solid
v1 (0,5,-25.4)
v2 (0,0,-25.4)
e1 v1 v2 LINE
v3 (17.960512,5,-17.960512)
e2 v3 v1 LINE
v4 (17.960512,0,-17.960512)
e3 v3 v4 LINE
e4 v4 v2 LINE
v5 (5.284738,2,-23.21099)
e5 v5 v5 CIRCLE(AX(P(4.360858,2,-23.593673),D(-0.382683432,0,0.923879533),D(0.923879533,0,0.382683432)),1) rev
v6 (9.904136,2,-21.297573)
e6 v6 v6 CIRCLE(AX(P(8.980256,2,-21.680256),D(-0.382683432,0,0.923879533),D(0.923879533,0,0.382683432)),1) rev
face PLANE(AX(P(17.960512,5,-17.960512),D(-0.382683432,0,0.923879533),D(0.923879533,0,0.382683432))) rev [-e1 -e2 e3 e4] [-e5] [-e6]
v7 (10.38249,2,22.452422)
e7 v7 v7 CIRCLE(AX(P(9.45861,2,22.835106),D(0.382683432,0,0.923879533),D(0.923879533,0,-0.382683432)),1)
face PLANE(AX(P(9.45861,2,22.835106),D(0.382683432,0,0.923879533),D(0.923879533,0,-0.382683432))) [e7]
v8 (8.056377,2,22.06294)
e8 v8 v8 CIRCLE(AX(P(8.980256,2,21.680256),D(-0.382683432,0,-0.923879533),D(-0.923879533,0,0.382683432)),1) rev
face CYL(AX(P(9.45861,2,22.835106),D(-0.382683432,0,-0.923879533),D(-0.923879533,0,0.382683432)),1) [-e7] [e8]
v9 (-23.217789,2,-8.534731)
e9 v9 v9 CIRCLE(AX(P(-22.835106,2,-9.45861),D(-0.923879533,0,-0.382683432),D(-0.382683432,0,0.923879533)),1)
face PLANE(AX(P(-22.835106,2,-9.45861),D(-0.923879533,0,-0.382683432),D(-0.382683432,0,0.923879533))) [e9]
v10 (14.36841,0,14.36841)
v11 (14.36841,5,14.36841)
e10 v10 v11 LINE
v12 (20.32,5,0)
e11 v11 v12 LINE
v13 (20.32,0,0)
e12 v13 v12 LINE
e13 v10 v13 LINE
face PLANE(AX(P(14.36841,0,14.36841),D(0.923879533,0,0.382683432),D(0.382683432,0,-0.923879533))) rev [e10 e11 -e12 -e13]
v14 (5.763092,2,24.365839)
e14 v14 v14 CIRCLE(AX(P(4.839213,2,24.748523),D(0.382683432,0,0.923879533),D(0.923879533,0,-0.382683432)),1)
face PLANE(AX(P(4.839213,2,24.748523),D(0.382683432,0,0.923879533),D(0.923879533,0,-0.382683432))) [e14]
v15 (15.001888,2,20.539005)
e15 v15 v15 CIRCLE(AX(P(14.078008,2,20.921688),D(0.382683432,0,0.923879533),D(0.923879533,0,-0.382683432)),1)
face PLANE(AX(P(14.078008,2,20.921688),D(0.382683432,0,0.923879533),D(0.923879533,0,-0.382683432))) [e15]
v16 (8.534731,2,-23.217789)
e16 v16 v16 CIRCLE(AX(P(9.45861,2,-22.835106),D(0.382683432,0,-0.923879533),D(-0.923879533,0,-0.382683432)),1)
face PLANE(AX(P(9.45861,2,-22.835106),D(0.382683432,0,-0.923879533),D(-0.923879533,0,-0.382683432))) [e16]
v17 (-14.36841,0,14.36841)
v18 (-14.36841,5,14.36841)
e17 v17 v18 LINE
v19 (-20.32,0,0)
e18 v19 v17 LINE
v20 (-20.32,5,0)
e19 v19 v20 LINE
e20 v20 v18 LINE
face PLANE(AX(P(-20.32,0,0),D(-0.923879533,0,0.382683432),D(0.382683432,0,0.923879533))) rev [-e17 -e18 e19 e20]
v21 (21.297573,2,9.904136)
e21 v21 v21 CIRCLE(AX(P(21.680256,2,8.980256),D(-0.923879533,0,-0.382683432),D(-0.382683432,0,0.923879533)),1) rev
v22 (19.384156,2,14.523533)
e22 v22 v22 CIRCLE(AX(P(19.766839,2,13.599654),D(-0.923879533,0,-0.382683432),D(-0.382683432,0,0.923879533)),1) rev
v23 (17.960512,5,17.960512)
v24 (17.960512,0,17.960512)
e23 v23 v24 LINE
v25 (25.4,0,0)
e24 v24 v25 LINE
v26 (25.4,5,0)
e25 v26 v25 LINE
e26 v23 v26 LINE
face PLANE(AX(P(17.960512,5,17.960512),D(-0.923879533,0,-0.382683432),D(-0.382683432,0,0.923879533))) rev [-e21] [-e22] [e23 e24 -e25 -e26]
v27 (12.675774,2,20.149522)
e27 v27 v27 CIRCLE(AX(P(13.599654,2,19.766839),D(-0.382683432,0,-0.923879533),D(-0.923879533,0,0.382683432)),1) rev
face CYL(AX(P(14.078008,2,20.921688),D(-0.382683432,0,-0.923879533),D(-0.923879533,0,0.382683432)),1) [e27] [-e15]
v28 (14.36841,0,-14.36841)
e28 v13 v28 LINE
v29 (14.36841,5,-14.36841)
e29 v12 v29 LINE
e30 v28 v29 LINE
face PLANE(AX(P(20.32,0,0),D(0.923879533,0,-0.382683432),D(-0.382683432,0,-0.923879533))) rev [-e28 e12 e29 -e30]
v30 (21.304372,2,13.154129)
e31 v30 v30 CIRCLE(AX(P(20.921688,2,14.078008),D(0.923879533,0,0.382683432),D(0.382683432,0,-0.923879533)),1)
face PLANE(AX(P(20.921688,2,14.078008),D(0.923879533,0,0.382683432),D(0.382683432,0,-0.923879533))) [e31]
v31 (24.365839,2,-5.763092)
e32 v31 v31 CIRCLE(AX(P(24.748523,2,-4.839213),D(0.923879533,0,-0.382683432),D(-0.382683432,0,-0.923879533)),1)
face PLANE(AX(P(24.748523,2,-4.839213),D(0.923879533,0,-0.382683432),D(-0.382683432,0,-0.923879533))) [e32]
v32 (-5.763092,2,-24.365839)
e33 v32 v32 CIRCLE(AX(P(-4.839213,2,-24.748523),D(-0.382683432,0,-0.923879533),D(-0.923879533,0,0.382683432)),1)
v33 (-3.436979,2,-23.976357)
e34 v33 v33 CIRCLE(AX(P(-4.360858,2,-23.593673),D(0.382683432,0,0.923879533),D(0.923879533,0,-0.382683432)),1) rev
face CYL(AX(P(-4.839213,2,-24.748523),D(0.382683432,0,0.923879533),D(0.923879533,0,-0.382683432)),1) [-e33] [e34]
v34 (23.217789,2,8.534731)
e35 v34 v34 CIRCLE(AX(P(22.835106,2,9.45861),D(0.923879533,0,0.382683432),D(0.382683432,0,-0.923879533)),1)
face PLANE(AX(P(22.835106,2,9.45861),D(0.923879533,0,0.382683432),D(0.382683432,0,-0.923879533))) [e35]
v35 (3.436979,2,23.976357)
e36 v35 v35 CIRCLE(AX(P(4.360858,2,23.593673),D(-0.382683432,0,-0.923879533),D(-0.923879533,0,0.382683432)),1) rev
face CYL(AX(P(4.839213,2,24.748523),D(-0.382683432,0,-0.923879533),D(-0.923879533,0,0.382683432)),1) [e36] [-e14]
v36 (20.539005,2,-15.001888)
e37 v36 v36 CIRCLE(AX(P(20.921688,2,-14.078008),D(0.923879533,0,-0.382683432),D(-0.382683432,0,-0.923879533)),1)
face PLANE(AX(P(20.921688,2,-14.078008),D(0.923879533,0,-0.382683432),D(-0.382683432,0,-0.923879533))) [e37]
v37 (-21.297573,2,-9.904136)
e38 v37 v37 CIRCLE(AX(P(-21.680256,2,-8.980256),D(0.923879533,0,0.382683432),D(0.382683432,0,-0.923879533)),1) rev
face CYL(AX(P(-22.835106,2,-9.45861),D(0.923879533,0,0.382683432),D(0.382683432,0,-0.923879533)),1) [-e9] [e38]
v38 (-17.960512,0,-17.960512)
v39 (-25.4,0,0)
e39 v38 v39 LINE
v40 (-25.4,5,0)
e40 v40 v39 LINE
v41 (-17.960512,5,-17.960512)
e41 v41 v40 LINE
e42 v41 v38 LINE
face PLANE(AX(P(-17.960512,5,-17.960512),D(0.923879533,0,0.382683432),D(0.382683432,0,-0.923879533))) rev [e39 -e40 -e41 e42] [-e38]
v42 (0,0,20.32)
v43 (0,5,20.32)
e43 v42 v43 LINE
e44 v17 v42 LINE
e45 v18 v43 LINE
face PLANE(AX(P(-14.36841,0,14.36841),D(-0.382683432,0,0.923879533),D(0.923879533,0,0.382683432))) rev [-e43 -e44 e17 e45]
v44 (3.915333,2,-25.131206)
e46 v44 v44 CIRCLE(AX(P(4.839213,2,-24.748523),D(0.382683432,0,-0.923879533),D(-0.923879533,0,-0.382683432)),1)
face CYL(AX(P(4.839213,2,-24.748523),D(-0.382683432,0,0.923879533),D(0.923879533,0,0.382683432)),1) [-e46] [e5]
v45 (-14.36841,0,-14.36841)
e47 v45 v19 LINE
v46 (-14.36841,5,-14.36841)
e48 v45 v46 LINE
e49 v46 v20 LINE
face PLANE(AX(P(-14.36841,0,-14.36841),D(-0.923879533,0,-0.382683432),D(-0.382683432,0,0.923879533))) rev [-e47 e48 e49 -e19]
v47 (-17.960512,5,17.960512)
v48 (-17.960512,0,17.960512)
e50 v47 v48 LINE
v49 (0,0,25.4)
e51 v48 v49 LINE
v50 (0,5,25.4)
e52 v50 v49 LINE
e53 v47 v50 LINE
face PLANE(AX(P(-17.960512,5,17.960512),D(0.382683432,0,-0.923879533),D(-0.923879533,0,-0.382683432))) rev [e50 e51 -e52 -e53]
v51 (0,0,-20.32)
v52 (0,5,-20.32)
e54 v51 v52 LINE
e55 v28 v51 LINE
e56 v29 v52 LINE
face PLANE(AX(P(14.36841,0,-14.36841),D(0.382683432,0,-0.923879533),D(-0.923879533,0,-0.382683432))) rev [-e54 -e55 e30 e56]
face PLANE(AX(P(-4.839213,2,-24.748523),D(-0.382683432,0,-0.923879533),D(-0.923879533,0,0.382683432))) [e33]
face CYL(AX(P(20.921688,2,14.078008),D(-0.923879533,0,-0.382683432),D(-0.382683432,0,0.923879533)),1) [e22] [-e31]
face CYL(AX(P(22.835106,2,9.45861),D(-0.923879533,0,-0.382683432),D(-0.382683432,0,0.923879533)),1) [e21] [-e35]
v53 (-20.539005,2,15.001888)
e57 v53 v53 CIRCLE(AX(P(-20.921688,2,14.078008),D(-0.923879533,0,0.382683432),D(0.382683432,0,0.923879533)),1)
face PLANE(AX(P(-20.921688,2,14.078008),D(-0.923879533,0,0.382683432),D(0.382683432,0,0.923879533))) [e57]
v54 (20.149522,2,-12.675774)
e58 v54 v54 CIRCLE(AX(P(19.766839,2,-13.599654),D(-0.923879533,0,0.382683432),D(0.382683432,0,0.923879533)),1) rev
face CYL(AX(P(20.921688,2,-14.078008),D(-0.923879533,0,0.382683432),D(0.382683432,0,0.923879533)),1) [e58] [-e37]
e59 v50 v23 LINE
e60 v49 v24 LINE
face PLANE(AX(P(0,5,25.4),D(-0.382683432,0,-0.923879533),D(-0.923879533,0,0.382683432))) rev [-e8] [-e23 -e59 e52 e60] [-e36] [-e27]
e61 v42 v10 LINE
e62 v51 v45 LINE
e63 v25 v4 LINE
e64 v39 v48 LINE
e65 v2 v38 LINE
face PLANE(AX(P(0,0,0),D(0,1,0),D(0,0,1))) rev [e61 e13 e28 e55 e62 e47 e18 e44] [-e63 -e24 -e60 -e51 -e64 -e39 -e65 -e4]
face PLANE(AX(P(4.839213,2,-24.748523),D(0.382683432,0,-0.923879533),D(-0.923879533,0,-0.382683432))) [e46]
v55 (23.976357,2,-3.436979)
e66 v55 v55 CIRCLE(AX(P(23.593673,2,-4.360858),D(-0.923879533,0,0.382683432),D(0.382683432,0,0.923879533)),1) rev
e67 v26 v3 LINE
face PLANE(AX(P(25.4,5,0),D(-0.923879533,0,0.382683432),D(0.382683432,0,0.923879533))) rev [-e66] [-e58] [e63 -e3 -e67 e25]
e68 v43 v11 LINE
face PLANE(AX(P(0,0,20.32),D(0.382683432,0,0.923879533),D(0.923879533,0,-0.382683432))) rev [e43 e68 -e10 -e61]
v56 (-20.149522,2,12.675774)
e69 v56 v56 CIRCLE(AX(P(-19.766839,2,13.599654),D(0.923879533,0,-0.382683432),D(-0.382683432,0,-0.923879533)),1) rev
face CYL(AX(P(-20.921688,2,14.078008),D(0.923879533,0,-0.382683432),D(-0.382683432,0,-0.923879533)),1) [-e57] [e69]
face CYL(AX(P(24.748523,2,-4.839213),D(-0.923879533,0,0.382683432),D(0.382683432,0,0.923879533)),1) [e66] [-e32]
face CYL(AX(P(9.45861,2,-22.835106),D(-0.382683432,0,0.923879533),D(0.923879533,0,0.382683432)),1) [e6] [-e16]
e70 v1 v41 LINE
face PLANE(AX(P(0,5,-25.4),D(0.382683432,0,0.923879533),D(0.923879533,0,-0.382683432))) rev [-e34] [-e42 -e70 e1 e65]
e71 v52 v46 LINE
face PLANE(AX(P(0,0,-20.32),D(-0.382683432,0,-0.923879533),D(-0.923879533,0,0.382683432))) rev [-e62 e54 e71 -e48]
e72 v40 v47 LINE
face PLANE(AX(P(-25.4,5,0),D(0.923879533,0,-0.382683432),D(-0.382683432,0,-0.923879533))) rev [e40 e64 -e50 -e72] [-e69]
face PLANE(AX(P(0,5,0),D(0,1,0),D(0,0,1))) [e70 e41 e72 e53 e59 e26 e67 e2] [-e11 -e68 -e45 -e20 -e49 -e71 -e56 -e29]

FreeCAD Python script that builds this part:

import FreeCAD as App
import Part
import Sketcher

V = App.Vector
Q = App.Units.Quantity

doc = App.newDocument("Part")
body = doc.addObject("PartDesign::Body", "Body")

sketch1 = body.newObject("Sketcher::SketchObject", "Sketch")
sketch1.AttachmentSupport = (doc.getObject("XZ_Plane"), [""])
sketch1.MapMode = "FlatFace"
sketch1.addGeometry([
    Part.LineSegment(V(25, 0, 0), V(18, -18, 0)),
    Part.LineSegment(V(18, -18, 0), V(0, -25, 0)),
    Part.LineSegment(V(0, -25, 0), V(-18, -18, 0)),
    Part.LineSegment(V(-18, -18, 0), V(-25, 0, 0)),
    Part.LineSegment(V(-25, 0, 0), V(-18, 18, 0)),
    Part.LineSegment(V(-18, 18, 0), V(0, 25, 0)),
    Part.LineSegment(V(0, 25, 0), V(18, 18, 0)),
    Part.LineSegment(V(18, 18, 0), V(25, 0, 0)),
], False)
sketch1.addConstraint([
    Sketcher.Constraint("Coincident", 0, 2, 1, 1),
    Sketcher.Constraint("Coincident", 1, 2, 2, 1),
    Sketcher.Constraint("Coincident", 2, 2, 3, 1),
    Sketcher.Constraint("Coincident", 3, 2, 4, 1),
    Sketcher.Constraint("Coincident", 4, 2, 5, 1),
    Sketcher.Constraint("Coincident", 5, 2, 6, 1),
    Sketcher.Constraint("Coincident", 6, 2, 7, 1),
    Sketcher.Constraint("Coincident", 7, 2, 0, 1),
    Sketcher.Constraint("Symmetric", 0, 2, 4, 2, -1, 1),
    Sketcher.Constraint("Symmetric", 1, 2, 5, 2, -1, 1),
    Sketcher.Constraint("Symmetric", 2, 2, 6, 2, -1, 1),
    Sketcher.Constraint("Symmetric", 3, 2, 7, 2, -1, 1),
    Sketcher.Constraint("Symmetric", 0, 2, 2, 2, -2),
    Sketcher.Constraint("PointOnObject", 1, 2, -2),
    Sketcher.Constraint("PointOnObject", 3, 2, -1),
    Sketcher.Constraint("Perpendicular", 0, 2),
    Sketcher.Constraint("Equal", 0, 1),
    Sketcher.Constraint("Angle", 0, Q("-112.5 deg")),
    Sketcher.Constraint("DistanceY", 1, 2, -1, 1, 25.4),
])
pad1 = body.newObject("PartDesign::Pad", "Pad")
pad1.Profile = sketch1
pad1.Length = 5
pad1.Reversed = True

sketch2 = body.newObject("Sketcher::SketchObject", "Sketch001")
sketch2.AttachmentSupport = (doc.getObject("XZ_Plane"), [""])
sketch2.MapMode = "FlatFace"
sketch2.AttachmentOffset = App.Placement(V(0, 0, -5), App.Rotation())
sketch2.addGeometry([
    Part.LineSegment(V(20, 0, 0), V(14, -14, 0)),
    Part.LineSegment(V(14, -14, 0), V(0, -20, 0)),
    Part.LineSegment(V(0, -20, 0), V(-14, -14, 0)),
    Part.LineSegment(V(-14, -14, 0), V(-20, 0, 0)),
    Part.LineSegment(V(-20, 0, 0), V(-14, 14, 0)),
    Part.LineSegment(V(-14, 14, 0), V(0, 20, 0)),
    Part.LineSegment(V(0, 20, 0), V(14, 14, 0)),
    Part.LineSegment(V(14, 14, 0), V(20, 0, 0)),
], False)
sketch2.addConstraint([
    Sketcher.Constraint("Coincident", 0, 2, 1, 1),
    Sketcher.Constraint("Coincident", 1, 2, 2, 1),
    Sketcher.Constraint("Coincident", 2, 2, 3, 1),
    Sketcher.Constraint("Coincident", 3, 2, 4, 1),
    Sketcher.Constraint("Coincident", 4, 2, 5, 1),
    Sketcher.Constraint("Coincident", 5, 2, 6, 1),
    Sketcher.Constraint("Coincident", 6, 2, 7, 1),
    Sketcher.Constraint("Coincident", 7, 2, 0, 1),
    Sketcher.Constraint("Symmetric", 0, 2, 4, 2, -1, 1),
    Sketcher.Constraint("Symmetric", 1, 2, 5, 2, -1, 1),
    Sketcher.Constraint("Symmetric", 2, 2, 6, 2, -1, 1),
    Sketcher.Constraint("Symmetric", 3, 2, 7, 2, -1, 1),
    Sketcher.Constraint("Symmetric", 0, 2, 2, 2, -2),
    Sketcher.Constraint("PointOnObject", 1, 2, -2),
    Sketcher.Constraint("PointOnObject", 3, 2, -1),
    Sketcher.Constraint("Perpendicular", 0, 2),
    Sketcher.Constraint("Equal", 0, 1),
    Sketcher.Constraint("Angle", 0, Q("-112.5 deg")),
    Sketcher.Constraint("DistanceY", 1, 2, -1, 1, 20.32),
])
pocket1 = body.newObject("PartDesign::Pocket", "Pocket")
pocket1.Profile = sketch2
pocket1.Length = 5
pocket1.Reversed = True

sketch3 = body.newObject("Sketcher::SketchObject", "Sketch002")
sketch3.Placement = App.Placement(V(8.980256, 0, 21.680256), App.Rotation(V(0.923879533, 0, -0.382683432), V(0, 1.000000001, 0), V(0.382683432, 0, 0.923879533), "ZXY"))
sketch3.addGeometry([
    Part.Circle(V(0, 2, 0), V(0, 0, 1), 1),
    Part.Circle(V(-5, 2, 0), V(0, 0, 1), 1),
    Part.Circle(V(5, 2, 0), V(0, 0, 1), 1),
], False)
sketch3.addConstraint([
    Sketcher.Constraint("Equal", 0, 1),
    Sketcher.Constraint("Equal", 1, 2),
    Sketcher.Constraint("Symmetric", 1, 3, 2, 3, -2),
    Sketcher.Constraint("PointOnObject", 0, 3, -2),
    Sketcher.Constraint("Horizontal", 0, 3, 1, 3),
    Sketcher.Constraint("Diameter", 0, 2.0),
    Sketcher.Constraint("DistanceY", -1, 1, 0, 3, 2.0),
    Sketcher.Constraint("DistanceX", 1, 3, -1, 1, 5.0),
])
pad2 = body.newObject("PartDesign::Pad", "Pad001")
pad2.Profile = sketch3
pad2.Length = 1.25

sketch4 = body.newObject("Sketcher::SketchObject", "Sketch003")
sketch4.Placement = App.Placement(V(-21.680256, 0, 8.980256), App.Rotation(V(0.382683432, 0, 0.923879533), V(0, 1.000000001, 0), V(-0.923879533, 0, 0.382683432), "ZXY"))
sketch4.addGeometry(Part.Circle(V(5, 2, 0), V(0, 0, 1), 1), False)
sketch4.addConstraint([
    Sketcher.Constraint("Diameter", 0, 2.0),
    Sketcher.Constraint("DistanceX", -1, 1, 0, 3, 5.0),
    Sketcher.Constraint("DistanceY", -1, 1, 0, 3, 2.0),
])
pad3 = body.newObject("PartDesign::Pad", "Pad002")
pad3.Profile = sketch4
pad3.Length = 1.25

sketch5 = body.newObject("Sketcher::SketchObject", "Sketch004")
sketch5.Placement = App.Placement(V(-21.680256, 0, -8.980256), App.Rotation(V(-0.382683432, 0, 0.923879533), V(0, 1.000000001, 0), V(-0.923879533, 0, -0.382683432), "ZXY"))
sketch5.addGeometry(Part.Circle(V(0, 2, 0), V(0, 0, 1), 1), False)
sketch5.addConstraint([
    Sketcher.Constraint("PointOnObject", 0, 3, -2),
    Sketcher.Constraint("Diameter", 0, 2.0),
    Sketcher.Constraint("DistanceY", -1, 1, 0, 3, 2.0),
])
pad4 = body.newObject("PartDesign::Pad", "Pad003")
pad4.Profile = sketch5
pad4.Length = 1.25

sketch6 = body.newObject("Sketcher::SketchObject", "Sketch005")
sketch6.Placement = App.Placement(V(-9.45861, 0, -22.835106), App.Rotation(V(-0.923879533, 0, 0.382683432), V(0, 1.000000001, 0), V(-0.382683432, 0, -0.923879533), "ZXY"))
sketch6.addGeometry(Part.Circle(V(-5, 2, 0), V(0, 0, 1), 1), False)
sketch6.addConstraint([
    Sketcher.Constraint("Diameter", 0, 2.0),
    Sketcher.Constraint("DistanceX", 0, 3, -1, 1, 5.0),
    Sketcher.Constraint("DistanceY", -1, 1, 0, 3, 2.0),
])
pad5 = body.newObject("PartDesign::Pad", "Pad004")
pad5.Profile = sketch6
pad5.Length = 1.25
pad5.Reversed = True

sketch7 = body.newObject("Sketcher::SketchObject", "Sketch006")
sketch7.Placement = App.Placement(V(8.980256, 0, -21.680256), App.Rotation(V(-0.923879533, 0, -0.382683432), V(0, 1.000000001, 0), V(0.382683432, 0, -0.923879533), "ZXY"))
sketch7.addGeometry([
    Part.Circle(V(0, 2, 0), V(0, 0, 1), 1),
    Part.Circle(V(5, 2, 0), V(0, 0, 1), 1),
], False)
sketch7.addConstraint([
    Sketcher.Constraint("Equal", 0, 1),
    Sketcher.Constraint("PointOnObject", 0, 3, -2),
    Sketcher.Constraint("Horizontal", 0, 3, 1, 3),
    Sketcher.Constraint("Diameter", 0, 2.0),
    Sketcher.Constraint("DistanceY", -1, 1, 0, 3, 2.0),
    Sketcher.Constraint("DistanceX", -1, 1, 1, 3, 5.0),
])
pad6 = body.newObject("PartDesign::Pad", "Pad005")
pad6.Profile = sketch7
pad6.Length = 1.25

sketch8 = body.newObject("Sketcher::SketchObject", "Sketch007")
sketch8.Placement = App.Placement(V(22.835106, 0, -9.45861), App.Rotation(V(-0.382683432, 0, -0.923879533), V(0, 1.000000001, 0), V(0.923879533, 0, -0.382683432), "ZXY"))
sketch8.addGeometry([
    Part.Circle(V(5, 2, 0), V(0, 0, 1), 1),
    Part.Circle(V(-5, 2, 0), V(0, 0, 1), 1),
], False)
sketch8.addConstraint([
    Sketcher.Constraint("Equal", 0, 1),
    Sketcher.Constraint("Symmetric", 0, 3, 1, 3, -2),
    Sketcher.Constraint("Diameter", 0, 2.0),
    Sketcher.Constraint("DistanceX", -1, 1, 0, 3, 5.0),
    Sketcher.Constraint("DistanceY", -1, 1, 0, 3, 2.0),
])
pad7 = body.newObject("PartDesign::Pad", "Pad006")
pad7.Profile = sketch8
pad7.Length = 1.25
pad7.Reversed = True

sketch9 = body.newObject("Sketcher::SketchObject", "Sketch008")
sketch9.Placement = App.Placement(V(22.835106, 0, 9.45861), App.Rotation(V(0.382683432, 0, -0.923879533), V(0, 1.000000001, 0), V(0.923879533, 0, 0.382683432), "ZXY"))
sketch9.addGeometry([
    Part.Circle(V(0, 2, 0), V(0, 0, 1), 1),
    Part.Circle(V(-5, 2, 0), V(0, 0, 1), 1),
], False)
sketch9.addConstraint([
    Sketcher.Constraint("Equal", 0, 1),
    Sketcher.Constraint("PointOnObject", 0, 3, -2),
    Sketcher.Constraint("Horizontal", 0, 3, 1, 3),
    Sketcher.Constraint("Diameter", 0, 2.0),
    Sketcher.Constraint("DistanceY", -1, 1, 0, 3, 2.0),
    Sketcher.Constraint("DistanceX", 1, 3, -1, 1, 5.0),
])
pad8 = body.newObject("PartDesign::Pad", "Pad007")
pad8.Profile = sketch9
pad8.Length = 1.25
pad8.Reversed = True

doc.recompute()
